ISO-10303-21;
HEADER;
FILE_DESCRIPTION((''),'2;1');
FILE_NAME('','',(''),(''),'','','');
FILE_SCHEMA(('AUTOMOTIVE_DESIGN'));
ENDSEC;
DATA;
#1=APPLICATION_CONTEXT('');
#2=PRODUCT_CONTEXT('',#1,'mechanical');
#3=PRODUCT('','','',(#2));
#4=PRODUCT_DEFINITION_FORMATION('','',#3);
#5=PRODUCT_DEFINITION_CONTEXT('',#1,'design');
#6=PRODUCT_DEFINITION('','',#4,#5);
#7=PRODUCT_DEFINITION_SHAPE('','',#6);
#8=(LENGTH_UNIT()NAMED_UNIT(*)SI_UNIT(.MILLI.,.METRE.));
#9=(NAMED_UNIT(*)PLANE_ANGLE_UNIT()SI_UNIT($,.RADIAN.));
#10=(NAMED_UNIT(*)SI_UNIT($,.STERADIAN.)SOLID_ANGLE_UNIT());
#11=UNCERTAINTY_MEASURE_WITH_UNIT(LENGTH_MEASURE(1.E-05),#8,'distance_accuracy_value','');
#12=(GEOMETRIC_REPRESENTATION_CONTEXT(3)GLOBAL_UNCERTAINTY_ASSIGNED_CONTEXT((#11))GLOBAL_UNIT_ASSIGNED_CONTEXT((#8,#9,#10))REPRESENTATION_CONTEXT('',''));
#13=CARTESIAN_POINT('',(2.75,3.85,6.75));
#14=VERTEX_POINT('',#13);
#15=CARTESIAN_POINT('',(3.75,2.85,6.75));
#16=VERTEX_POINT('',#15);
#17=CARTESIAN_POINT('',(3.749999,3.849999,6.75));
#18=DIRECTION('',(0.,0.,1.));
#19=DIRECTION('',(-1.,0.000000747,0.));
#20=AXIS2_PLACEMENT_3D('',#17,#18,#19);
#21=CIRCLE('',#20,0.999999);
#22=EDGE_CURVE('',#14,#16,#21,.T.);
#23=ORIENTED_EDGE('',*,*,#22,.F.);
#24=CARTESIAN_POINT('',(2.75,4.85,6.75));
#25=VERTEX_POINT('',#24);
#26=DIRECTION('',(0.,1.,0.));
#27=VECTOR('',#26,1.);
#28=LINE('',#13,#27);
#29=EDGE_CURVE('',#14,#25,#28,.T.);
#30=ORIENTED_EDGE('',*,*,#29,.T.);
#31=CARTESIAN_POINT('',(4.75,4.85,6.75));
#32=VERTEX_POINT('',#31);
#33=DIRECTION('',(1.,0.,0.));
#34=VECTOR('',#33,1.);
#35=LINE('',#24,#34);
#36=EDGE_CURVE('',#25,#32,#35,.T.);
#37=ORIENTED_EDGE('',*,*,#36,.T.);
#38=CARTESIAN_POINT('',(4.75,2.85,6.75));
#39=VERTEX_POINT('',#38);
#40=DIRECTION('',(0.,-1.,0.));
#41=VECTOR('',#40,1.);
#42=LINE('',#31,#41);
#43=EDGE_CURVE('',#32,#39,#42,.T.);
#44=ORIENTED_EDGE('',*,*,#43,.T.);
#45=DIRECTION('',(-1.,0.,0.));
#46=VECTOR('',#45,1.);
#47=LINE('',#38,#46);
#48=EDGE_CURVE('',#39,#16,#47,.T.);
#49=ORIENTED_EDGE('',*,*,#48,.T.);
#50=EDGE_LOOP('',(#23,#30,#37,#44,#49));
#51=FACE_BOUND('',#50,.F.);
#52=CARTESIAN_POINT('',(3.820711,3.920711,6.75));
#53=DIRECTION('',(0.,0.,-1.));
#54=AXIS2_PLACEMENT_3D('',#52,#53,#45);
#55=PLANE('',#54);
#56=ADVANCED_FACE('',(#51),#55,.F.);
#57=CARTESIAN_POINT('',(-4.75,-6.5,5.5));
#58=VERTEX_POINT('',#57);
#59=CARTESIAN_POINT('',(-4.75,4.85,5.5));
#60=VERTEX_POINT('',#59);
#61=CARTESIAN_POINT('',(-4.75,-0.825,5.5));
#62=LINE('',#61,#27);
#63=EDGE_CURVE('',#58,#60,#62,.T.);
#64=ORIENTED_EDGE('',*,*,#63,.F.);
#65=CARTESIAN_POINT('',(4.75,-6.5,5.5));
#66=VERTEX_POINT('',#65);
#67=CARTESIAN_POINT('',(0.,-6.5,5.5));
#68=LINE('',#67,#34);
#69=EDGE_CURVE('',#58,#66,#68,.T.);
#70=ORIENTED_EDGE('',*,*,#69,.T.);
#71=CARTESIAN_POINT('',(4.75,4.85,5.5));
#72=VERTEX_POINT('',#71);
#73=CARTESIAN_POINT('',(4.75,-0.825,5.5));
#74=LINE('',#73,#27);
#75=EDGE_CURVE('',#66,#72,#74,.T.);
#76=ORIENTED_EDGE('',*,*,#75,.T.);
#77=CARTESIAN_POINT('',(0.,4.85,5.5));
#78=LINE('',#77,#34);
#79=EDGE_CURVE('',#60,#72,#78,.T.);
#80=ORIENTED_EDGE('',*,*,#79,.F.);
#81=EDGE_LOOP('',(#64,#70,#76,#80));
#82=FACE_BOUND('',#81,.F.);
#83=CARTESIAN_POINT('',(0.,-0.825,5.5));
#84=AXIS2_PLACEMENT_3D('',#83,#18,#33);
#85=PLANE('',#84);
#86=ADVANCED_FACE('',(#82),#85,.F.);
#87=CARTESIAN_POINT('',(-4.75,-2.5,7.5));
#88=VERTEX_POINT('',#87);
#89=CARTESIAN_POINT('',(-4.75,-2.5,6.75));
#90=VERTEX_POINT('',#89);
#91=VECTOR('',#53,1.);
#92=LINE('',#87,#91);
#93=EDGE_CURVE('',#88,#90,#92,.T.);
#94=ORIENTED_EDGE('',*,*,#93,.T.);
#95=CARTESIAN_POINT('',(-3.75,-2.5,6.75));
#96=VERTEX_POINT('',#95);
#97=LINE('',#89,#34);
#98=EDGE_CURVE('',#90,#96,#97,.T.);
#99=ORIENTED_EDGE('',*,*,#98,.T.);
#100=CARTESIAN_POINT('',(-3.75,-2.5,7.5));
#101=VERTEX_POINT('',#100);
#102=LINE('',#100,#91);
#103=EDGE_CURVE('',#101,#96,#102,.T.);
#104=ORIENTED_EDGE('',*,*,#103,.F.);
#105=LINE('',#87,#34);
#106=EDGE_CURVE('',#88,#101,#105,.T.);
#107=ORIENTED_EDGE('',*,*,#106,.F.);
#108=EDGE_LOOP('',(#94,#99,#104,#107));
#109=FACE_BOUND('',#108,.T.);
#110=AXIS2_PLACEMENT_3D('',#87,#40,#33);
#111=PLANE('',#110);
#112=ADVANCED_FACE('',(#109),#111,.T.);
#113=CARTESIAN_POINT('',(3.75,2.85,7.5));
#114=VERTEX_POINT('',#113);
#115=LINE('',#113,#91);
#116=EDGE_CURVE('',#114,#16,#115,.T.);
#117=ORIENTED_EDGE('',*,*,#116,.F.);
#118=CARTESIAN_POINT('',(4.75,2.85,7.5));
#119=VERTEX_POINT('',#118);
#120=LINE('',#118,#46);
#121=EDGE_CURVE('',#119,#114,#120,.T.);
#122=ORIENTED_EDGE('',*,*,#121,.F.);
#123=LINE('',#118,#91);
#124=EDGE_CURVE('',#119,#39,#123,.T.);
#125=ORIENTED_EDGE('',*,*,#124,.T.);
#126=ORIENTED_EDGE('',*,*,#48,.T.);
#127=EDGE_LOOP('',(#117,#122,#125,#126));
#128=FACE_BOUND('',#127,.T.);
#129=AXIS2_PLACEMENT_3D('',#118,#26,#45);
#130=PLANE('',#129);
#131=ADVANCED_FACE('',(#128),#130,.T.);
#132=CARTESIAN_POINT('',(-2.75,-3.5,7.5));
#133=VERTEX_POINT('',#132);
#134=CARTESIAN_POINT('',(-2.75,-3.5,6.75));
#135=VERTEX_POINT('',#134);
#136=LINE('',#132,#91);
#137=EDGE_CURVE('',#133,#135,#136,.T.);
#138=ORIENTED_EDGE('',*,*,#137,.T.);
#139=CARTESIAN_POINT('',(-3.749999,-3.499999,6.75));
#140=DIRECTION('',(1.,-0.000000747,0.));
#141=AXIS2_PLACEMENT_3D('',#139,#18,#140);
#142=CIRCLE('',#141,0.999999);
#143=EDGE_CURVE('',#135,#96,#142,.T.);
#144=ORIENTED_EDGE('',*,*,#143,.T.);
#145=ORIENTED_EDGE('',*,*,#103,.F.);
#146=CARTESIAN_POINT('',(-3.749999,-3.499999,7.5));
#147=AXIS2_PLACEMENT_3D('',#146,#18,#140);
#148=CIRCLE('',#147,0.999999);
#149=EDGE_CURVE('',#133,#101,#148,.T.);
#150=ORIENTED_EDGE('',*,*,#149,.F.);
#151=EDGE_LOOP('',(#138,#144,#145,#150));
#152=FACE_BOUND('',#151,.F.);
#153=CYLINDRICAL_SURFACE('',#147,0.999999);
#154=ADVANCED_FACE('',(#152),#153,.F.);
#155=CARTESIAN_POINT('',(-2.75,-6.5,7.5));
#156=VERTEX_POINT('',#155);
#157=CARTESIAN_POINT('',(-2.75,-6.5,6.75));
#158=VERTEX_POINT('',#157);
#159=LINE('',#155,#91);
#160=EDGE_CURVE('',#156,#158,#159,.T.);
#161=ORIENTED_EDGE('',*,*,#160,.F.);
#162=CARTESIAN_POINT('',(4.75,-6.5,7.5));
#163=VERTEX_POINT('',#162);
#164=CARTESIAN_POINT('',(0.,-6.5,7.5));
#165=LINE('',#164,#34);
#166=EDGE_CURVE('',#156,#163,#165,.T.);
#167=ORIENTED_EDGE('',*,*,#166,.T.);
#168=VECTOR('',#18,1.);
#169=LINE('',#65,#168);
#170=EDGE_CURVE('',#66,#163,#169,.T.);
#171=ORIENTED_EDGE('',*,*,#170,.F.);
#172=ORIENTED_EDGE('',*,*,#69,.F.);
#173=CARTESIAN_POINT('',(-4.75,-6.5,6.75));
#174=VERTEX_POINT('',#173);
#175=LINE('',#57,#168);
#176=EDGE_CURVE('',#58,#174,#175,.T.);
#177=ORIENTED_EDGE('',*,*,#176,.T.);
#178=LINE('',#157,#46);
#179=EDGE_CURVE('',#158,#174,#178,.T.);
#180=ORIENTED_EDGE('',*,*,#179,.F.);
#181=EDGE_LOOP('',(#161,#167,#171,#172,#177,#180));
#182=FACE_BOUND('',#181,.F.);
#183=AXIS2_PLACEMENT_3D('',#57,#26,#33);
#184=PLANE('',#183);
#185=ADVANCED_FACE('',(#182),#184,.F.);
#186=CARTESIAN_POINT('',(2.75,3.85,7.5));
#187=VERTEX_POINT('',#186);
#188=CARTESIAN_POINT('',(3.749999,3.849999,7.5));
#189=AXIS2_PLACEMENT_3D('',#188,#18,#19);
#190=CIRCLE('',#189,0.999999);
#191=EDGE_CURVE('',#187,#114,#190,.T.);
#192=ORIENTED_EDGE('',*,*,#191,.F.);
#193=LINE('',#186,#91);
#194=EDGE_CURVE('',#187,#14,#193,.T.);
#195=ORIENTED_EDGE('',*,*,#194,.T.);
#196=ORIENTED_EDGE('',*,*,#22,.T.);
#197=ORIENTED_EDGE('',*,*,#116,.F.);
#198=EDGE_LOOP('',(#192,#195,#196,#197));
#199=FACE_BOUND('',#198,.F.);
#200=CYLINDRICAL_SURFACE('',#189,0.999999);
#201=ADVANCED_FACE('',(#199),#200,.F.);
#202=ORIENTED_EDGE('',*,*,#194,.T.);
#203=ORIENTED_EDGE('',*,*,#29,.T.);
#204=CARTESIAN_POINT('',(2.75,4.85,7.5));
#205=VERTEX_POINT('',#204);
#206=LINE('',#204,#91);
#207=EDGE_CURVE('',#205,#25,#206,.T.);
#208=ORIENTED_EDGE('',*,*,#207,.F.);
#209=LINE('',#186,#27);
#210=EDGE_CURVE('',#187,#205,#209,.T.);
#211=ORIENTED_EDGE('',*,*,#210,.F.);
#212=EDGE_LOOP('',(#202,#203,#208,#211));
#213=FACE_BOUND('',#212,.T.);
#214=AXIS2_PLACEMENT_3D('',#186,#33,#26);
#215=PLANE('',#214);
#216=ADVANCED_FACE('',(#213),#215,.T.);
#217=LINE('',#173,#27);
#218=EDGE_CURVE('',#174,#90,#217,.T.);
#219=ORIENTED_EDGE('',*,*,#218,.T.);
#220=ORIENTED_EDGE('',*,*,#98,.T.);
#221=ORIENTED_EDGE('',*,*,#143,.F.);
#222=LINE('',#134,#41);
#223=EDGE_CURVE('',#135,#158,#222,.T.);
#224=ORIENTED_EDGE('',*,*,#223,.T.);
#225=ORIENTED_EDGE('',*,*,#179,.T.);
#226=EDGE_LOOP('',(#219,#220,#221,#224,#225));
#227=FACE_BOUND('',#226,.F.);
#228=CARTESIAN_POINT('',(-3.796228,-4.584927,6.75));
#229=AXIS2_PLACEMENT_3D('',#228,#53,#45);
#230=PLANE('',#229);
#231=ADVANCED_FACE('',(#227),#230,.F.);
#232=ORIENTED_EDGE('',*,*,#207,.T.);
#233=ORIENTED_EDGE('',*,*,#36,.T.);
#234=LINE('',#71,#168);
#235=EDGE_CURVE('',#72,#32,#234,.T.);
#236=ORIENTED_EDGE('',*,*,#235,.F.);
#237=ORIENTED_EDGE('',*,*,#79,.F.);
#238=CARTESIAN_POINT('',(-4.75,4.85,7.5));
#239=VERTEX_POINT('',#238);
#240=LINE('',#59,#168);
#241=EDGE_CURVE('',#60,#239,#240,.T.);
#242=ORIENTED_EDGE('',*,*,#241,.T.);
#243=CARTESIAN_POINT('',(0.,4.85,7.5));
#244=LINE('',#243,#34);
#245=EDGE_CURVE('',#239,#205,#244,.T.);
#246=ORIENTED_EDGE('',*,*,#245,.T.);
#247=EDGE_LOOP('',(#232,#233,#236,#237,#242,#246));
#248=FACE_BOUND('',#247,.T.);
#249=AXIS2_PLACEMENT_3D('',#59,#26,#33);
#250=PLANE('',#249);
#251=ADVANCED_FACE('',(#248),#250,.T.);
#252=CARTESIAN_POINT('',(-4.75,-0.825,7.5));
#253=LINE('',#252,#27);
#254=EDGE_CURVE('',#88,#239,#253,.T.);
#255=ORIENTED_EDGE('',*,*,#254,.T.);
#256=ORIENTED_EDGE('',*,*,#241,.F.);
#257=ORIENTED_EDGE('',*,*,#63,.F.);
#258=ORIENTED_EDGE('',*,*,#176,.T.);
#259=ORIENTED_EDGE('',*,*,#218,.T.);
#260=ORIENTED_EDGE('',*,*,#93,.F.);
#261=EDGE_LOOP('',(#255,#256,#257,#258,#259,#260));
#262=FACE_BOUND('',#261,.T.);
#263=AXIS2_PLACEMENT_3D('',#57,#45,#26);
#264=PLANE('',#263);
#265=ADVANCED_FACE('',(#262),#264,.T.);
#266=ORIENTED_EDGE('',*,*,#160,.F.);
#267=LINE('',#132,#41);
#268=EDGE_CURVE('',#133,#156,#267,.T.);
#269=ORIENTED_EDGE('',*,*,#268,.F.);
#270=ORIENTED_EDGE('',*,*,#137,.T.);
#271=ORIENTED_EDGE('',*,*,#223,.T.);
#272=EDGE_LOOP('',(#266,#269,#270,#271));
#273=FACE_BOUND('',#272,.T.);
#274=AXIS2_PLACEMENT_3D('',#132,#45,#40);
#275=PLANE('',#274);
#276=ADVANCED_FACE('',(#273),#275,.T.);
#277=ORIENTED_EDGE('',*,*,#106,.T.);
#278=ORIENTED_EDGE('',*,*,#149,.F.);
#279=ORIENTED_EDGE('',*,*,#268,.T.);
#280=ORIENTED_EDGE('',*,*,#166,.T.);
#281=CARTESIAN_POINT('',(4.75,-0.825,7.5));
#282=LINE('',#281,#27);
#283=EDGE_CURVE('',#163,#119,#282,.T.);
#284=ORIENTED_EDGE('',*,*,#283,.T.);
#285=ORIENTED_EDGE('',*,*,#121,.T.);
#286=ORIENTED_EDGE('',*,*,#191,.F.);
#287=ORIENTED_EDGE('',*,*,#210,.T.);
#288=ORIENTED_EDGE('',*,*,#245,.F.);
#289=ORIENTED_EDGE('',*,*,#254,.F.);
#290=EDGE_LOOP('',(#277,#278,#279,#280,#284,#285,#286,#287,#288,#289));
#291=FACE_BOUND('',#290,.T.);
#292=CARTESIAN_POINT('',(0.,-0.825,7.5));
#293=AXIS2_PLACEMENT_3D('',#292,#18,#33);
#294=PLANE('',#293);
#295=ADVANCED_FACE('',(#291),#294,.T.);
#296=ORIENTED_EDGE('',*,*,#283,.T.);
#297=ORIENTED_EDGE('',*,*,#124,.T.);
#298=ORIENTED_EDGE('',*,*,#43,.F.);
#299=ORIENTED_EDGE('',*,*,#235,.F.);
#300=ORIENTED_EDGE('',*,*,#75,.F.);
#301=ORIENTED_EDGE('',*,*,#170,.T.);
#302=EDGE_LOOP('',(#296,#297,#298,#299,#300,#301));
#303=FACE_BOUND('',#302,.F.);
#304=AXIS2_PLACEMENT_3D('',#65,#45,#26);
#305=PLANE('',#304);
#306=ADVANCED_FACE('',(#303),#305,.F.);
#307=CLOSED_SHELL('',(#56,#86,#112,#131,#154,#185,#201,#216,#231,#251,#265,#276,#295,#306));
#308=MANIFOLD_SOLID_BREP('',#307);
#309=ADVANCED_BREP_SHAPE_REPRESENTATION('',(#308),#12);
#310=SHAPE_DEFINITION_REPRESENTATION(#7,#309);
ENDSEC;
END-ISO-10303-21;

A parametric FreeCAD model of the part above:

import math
import FreeCAD as App
import Part
import Sketcher
from FreeCAD import Vector
Q = App.Units.Quantity


def add_polygon(sketch, points):
    """Adds a closed chain of lines whose ends are joined by coincident constraints."""
    first, n = sketch.GeometryCount, len(points)
    for a, b in zip(points, points[1:] + points[:1]):
        sketch.addGeometry(Part.LineSegment(App.Vector(*a, 0), App.Vector(*b, 0)), False)
    for i in range(n):
        sketch.addConstraint(Sketcher.Constraint("Coincident", first + i, 2, first + (i + 1) % n, 1))

doc = App.newDocument("Part")
body = doc.addObject("PartDesign::Body", "Body")

# Sketch on XY plane
sketch1 = body.newObject("Sketcher::SketchObject", "Sketch")
sketch1.AttachmentSupport = (doc.getObject("XY_Plane"), [""])
sketch1.MapMode = "FlatFace"
sketch1.AttachmentOffset = App.Placement(Vector(0, 0, 5.5), App.Rotation())
add_polygon(sketch1, [(-4.75, 4.85), (-4.75, -6.5), (4.75, -6.5), (4.75, 4.85)])  # lines 0-3
sketch1.addConstraint([
    Sketcher.Constraint("Vertical", 0),
    Sketcher.Constraint("Horizontal", 1),
    Sketcher.Constraint("Vertical", 2),
    Sketcher.Constraint("Horizontal", 3),
    Sketcher.Constraint("DistanceX", 1, 1, 1, 2, Q("9.5 mm")),
    Sketcher.Constraint("DistanceY", 0, 2, 0, 1, Q("11.35 mm")),
    Sketcher.Constraint("DistanceY", 0, 2, -1, 1, Q("6.5 mm")),
    Sketcher.Constraint("DistanceX", 0, 2, -1, 1, Q("4.75 mm")),
])
pad1 = body.newObject("PartDesign::Pad", "Pad")
pad1.Profile = sketch1
pad1.Length = 2

# Sketch on XY plane
sketch2 = body.newObject("Sketcher::SketchObject", "Sketch001")
sketch2.AttachmentSupport = (doc.getObject("XY_Plane"), [""])
sketch2.MapMode = "FlatFace"
sketch2.AttachmentOffset = App.Placement(Vector(0, 0, 7.5), App.Rotation())
sketch2.addGeometry([
    Part.LineSegment(Vector(4.75, 4.85, 0), Vector(2.75, 4.85, 0)),  # 0
    Part.LineSegment(Vector(2.75, 4.85, 0), Vector(2.75, 3.85, 0)),  # 1
    Part.ArcOfCircle(Part.Circle(Vector(3.749999, 3.849999, 0), Vector(0, 0, 1), 0.999999), math.radians(179.999957), math.radians(270.000043)),  # 2
    Part.LineSegment(Vector(3.75, 2.85, 0), Vector(4.75, 2.85, 0)),  # 3
    Part.LineSegment(Vector(4.75, 2.85, 0), Vector(4.75, 4.85, 0)),  # 4
], False)
sketch2.addConstraint([
    Sketcher.Constraint("Coincident", 0, 2, 1, 1),
    Sketcher.Constraint("Tangent", 1, 2, 2, 1),
    Sketcher.Constraint("Tangent", 2, 2, 3, 1),
    Sketcher.Constraint("Coincident", 3, 2, 4, 1),
    Sketcher.Constraint("Coincident", 4, 2, 0, 1),
    Sketcher.Constraint("Horizontal", 0),
    Sketcher.Constraint("Vertical", 1),
    Sketcher.Constraint("Horizontal", 3),
    Sketcher.Constraint("Vertical", 4),
    Sketcher.Constraint("Equal", 3, 1),
    Sketcher.Constraint("Radius", 2, Q("0.999999 mm")),
    Sketcher.Constraint("DistanceX", 0, 2, 0, 1, Q("2 mm")),
    Sketcher.Constraint("DistanceX", -1, 1, 2, 3, Q("3.749999 mm")),
    Sketcher.Constraint("DistanceY", -1, 1, 2, 3, Q("3.849999 mm")),
])
pocket1 = body.newObject("PartDesign::Pocket", "Pocket")
pocket1.Profile = sketch2
pocket1.Length = 0.75

# Sketch on XY plane
sketch3 = body.newObject("Sketcher::SketchObject", "Sketch002")
sketch3.AttachmentSupport = (doc.getObject("XY_Plane"), [""])
sketch3.MapMode = "FlatFace"
sketch3.AttachmentOffset = App.Placement(Vector(0, 0, 7.5), App.Rotation())
sketch3.addGeometry([
    Part.LineSegment(Vector(-3.75, -2.5, 0), Vector(-4.75, -2.5, 0)),  # 0
    Part.LineSegment(Vector(-4.75, -2.5, 0), Vector(-4.75, -6.5, 0)),  # 1
    Part.LineSegment(Vector(-4.75, -6.5, 0), Vector(-2.75, -6.5, 0)),  # 2
    Part.LineSegment(Vector(-2.75, -6.5, 0), Vector(-2.75, -3.5, 0)),  # 3
    Part.ArcOfCircle(Part.Circle(Vector(-3.749999, -3.499999, 0), Vector(0, 0, 1), 0.999999), math.radians(-0.000043), math.radians(90.000043)),  # 4
], False)
sketch3.addConstraint([
    Sketcher.Constraint("Coincident", 0, 2, 1, 1),
    Sketcher.Constraint("Coincident", 1, 2, 2, 1),
    Sketcher.Constraint("Coincident", 2, 2, 3, 1),
    Sketcher.Constraint("Tangent", 3, 2, 4, 1),
    Sketcher.Constraint("Tangent", 4, 2, 0, 1),
    Sketcher.Constraint("Horizontal", 0),
    Sketcher.Constraint("Vertical", 1),
    Sketcher.Constraint("Horizontal", 2),
    Sketcher.Constraint("Vertical", 3),
    Sketcher.Constraint("Radius", 4, Q("0.999999 mm")),
    Sketcher.Constraint("DistanceX", 0, 2, 0, 1, Q("1 mm")),
    Sketcher.Constraint("DistanceY", 1, 2, 1, 1, Q("4 mm")),
    Sketcher.Constraint("DistanceY", 4, 3, -1, 1, Q("3.499999 mm")),
    Sketcher.Constraint("DistanceX", 4, 3, -1, 1, Q("3.749999 mm")),
])
pocket2 = body.newObject("PartDesign::Pocket", "Pocket001")
pocket2.Profile = sketch3
pocket2.Length = 0.75

doc.recompute()
